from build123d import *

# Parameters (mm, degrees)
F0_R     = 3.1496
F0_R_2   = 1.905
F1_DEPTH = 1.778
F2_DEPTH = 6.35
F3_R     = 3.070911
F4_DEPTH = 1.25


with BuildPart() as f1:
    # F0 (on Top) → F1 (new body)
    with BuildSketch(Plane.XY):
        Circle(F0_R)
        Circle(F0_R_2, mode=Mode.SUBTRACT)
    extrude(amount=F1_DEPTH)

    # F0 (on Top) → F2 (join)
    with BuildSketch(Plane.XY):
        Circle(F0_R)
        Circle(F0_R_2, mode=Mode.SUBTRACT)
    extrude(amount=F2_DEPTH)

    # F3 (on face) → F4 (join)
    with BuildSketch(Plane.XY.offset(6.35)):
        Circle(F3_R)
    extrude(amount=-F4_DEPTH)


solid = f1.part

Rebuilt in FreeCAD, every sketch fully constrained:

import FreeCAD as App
import Part
import Sketcher
Q = App.Units.Quantity

doc = App.newDocument("Part")
body = doc.addObject("PartDesign::Body", "Body")

# Sketch on XY plane
sketch1 = body.newObject("Sketcher::SketchObject", "Sketch")
sketch1.AttachmentSupport = (doc.getObject("XY_Plane"), [""])
sketch1.MapMode = "FlatFace"
sketch1.addGeometry(Part.Circle(App.Vector(0, 0, 0), App.Vector(0, 0, 1), 3.1496), False)
sketch1.addGeometry(Part.Circle(App.Vector(0, 0, 0), App.Vector(0, 0, 1), 1.905), False)
sketch1.addConstraint(Sketcher.Constraint("Coincident", 0, 3, -1, 1))
sketch1.addConstraint(Sketcher.Constraint("Coincident", 1, 3, -1, 1))
sketch1.addConstraint(Sketcher.Constraint("Diameter", 1, Q("0.15 in")))
sketch1.addConstraint(Sketcher.Constraint("Diameter", 0, Q("0.248 in")))
pad1 = body.newObject("PartDesign::Pad", "Pad")
pad1.Profile = sketch1
pad1.Length = Q("0.07 in")

# Sketch on XY plane
sketch2 = body.newObject("Sketcher::SketchObject", "Sketch001")
sketch2.AttachmentSupport = (doc.getObject("XY_Plane"), [""])
sketch2.MapMode = "FlatFace"
sketch2.addGeometry(Part.Circle(App.Vector(0, 0, 0), App.Vector(0, 0, 1), 3.1496), False)
sketch2.addGeometry(Part.Circle(App.Vector(0, 0, 0), App.Vector(0, 0, 1), 1.905), False)
sketch2.addConstraint(Sketcher.Constraint("Coincident", 0, 3, -1, 1))
sketch2.addConstraint(Sketcher.Constraint("Coincident", 1, 3, -1, 1))
sketch2.addConstraint(Sketcher.Constraint("Diameter", 1, Q("0.15 in")))
sketch2.addConstraint(Sketcher.Constraint("Diameter", 0, Q("0.248 in")))
pad2 = body.newObject("PartDesign::Pad", "Pad001")
pad2.Profile = sketch2
pad2.Length = Q("0.25 in")

# Sketch on XY plane
sketch3 = body.newObject("Sketcher::SketchObject", "Sketch002")
sketch3.AttachmentSupport = (doc.getObject("XY_Plane"), [""])
sketch3.MapMode = "FlatFace"
sketch3.AttachmentOffset = App.Placement(App.Vector(0, 0, 0.25 * 25.4), App.Rotation())
sketch3.addGeometry(Part.Circle(App.Vector(0, 0, 0), App.Vector(0, 0, 1), 3.070911), False)
sketch3.addConstraint(Sketcher.Constraint("Coincident", 0, 3, -1, 1))
sketch3.addConstraint(Sketcher.Constraint("Diameter", 0, 6.141822))
pad3 = body.newObject("PartDesign::Pad", "Pad002")
pad3.Profile = sketch3
pad3.Length = 1.25
pad3.Reversed = True

doc.recompute()
